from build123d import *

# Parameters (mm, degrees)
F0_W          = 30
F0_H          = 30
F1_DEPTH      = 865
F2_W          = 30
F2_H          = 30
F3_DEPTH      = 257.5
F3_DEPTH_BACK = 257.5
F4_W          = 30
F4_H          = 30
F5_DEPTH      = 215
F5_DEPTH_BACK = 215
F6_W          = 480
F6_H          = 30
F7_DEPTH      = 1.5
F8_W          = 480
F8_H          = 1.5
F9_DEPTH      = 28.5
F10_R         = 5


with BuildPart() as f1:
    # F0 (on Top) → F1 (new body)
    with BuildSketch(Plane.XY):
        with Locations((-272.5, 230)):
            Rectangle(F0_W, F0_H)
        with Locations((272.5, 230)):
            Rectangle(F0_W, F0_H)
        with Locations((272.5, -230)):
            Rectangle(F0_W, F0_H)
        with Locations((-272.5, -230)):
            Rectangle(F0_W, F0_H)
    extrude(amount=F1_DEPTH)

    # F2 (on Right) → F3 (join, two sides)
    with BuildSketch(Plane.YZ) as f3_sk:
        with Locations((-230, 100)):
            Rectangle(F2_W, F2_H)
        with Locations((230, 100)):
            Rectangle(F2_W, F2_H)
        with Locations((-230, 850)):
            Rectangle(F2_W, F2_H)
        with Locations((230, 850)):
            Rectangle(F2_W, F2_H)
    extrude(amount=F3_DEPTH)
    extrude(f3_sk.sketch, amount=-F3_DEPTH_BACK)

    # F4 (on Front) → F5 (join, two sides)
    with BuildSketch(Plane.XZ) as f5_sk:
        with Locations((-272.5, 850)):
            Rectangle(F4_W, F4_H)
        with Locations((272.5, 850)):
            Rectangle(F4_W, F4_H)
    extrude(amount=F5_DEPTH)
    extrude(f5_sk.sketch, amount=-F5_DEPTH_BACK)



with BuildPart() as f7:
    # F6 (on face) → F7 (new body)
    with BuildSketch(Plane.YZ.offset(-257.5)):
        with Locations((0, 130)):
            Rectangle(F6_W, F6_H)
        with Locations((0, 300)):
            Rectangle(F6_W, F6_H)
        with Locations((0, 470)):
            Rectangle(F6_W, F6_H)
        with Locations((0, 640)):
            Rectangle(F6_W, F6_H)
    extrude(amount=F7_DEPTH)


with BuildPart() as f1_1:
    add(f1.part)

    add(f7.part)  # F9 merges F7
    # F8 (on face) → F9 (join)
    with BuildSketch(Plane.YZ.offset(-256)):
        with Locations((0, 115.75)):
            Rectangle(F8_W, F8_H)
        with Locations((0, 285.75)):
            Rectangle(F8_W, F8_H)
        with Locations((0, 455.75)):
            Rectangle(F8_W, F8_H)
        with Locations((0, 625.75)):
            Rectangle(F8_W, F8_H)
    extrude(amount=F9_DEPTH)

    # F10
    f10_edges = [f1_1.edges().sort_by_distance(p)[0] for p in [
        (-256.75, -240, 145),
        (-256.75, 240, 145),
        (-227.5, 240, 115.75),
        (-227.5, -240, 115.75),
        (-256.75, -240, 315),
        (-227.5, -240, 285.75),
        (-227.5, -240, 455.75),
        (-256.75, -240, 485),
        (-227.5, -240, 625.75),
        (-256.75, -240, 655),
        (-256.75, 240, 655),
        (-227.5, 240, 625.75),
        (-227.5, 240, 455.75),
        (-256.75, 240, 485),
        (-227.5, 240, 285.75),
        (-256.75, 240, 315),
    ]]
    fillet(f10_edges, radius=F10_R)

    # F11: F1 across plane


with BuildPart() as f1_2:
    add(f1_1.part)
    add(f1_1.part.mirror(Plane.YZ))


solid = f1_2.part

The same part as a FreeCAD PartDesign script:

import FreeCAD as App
import Part
import Sketcher
from FreeCAD import Vector
Q = App.Units.Quantity


def edges_at(feature, points):
    """Names of the edges that pass closest to the given points."""
    edges = feature.Shape.Edges
    near = lambda p: min(range(len(edges)), key=lambda i: edges[i].distToShape(Part.Vertex(*p))[0])
    return sorted({f"Edge{near(p) + 1}" for p in points})

doc = App.newDocument("Part")
body = doc.addObject("PartDesign::Body", "Body")
body.AllowCompound = True

# Sketch on XY plane
sketch1 = body.newObject("Sketcher::SketchObject", "Sketch")
sketch1.AttachmentSupport = (doc.getObject("XY_Plane"), [""])
sketch1.MapMode = "FlatFace"
sketch1.addGeometry(Part.LineSegment(Vector(-287.5, 245, 0), Vector(-287.5, 215, 0)), False)
sketch1.addGeometry(Part.LineSegment(Vector(-287.5, 215, 0), Vector(-257.5, 215, 0)), False)
sketch1.addGeometry(Part.LineSegment(Vector(-257.5, 215, 0), Vector(-257.5, 245, 0)), False)
sketch1.addGeometry(Part.LineSegment(Vector(-257.5, 245, 0), Vector(-287.5, 245, 0)), False)
sketch1.addGeometry(Part.LineSegment(Vector(257.5, 245, 0), Vector(257.5, 215, 0)), False)
sketch1.addGeometry(Part.LineSegment(Vector(257.5, 215, 0), Vector(287.5, 215, 0)), False)
sketch1.addGeometry(Part.LineSegment(Vector(287.5, 215, 0), Vector(287.5, 245, 0)), False)
sketch1.addGeometry(Part.LineSegment(Vector(287.5, 245, 0), Vector(257.5, 245, 0)), False)
sketch1.addGeometry(Part.LineSegment(Vector(257.5, -215, 0), Vector(257.5, -245, 0)), False)
sketch1.addGeometry(Part.LineSegment(Vector(257.5, -245, 0), Vector(287.5, -245, 0)), False)
sketch1.addGeometry(Part.LineSegment(Vector(287.5, -245, 0), Vector(287.5, -215, 0)), False)
sketch1.addGeometry(Part.LineSegment(Vector(287.5, -215, 0), Vector(257.5, -215, 0)), False)
sketch1.addGeometry(Part.LineSegment(Vector(-287.5, -215, 0), Vector(-287.5, -245, 0)), False)
sketch1.addGeometry(Part.LineSegment(Vector(-287.5, -245, 0), Vector(-257.5, -245, 0)), False)
sketch1.addGeometry(Part.LineSegment(Vector(-257.5, -245, 0), Vector(-257.5, -215, 0)), False)
sketch1.addGeometry(Part.LineSegment(Vector(-257.5, -215, 0), Vector(-287.5, -215, 0)), False)
sketch1.addConstraint(Sketcher.Constraint("Coincident", 0, 2, 1, 1))
sketch1.addConstraint(Sketcher.Constraint("Coincident", 1, 2, 2, 1))
sketch1.addConstraint(Sketcher.Constraint("Coincident", 2, 2, 3, 1))
sketch1.addConstraint(Sketcher.Constraint("Coincident", 3, 2, 0, 1))
sketch1.addConstraint(Sketcher.Constraint("Coincident", 4, 2, 5, 1))
sketch1.addConstraint(Sketcher.Constraint("Coincident", 5, 2, 6, 1))
sketch1.addConstraint(Sketcher.Constraint("Coincident", 6, 2, 7, 1))
sketch1.addConstraint(Sketcher.Constraint("Coincident", 7, 2, 4, 1))
sketch1.addConstraint(Sketcher.Constraint("Coincident", 8, 2, 9, 1))
sketch1.addConstraint(Sketcher.Constraint("Coincident", 9, 2, 10, 1))
sketch1.addConstraint(Sketcher.Constraint("Coincident", 10, 2, 11, 1))
sketch1.addConstraint(Sketcher.Constraint("Coincident", 11, 2, 8, 1))
sketch1.addConstraint(Sketcher.Constraint("Coincident", 12, 2, 13, 1))
sketch1.addConstraint(Sketcher.Constraint("Coincident", 13, 2, 14, 1))
sketch1.addConstraint(Sketcher.Constraint("Coincident", 14, 2, 15, 1))
sketch1.addConstraint(Sketcher.Constraint("Coincident", 15, 2, 12, 1))
sketch1.addConstraint(Sketcher.Constraint("Vertical", 0))
sketch1.addConstraint(Sketcher.Constraint("Horizontal", 1))
sketch1.addConstraint(Sketcher.Constraint("Vertical", 2))
sketch1.addConstraint(Sketcher.Constraint("Horizontal", 3))
sketch1.addConstraint(Sketcher.Constraint("Vertical", 4))
sketch1.addConstraint(Sketcher.Constraint("Horizontal", 5))
sketch1.addConstraint(Sketcher.Constraint("Vertical", 6))
sketch1.addConstraint(Sketcher.Constraint("Horizontal", 7))
sketch1.addConstraint(Sketcher.Constraint("Vertical", 8))
sketch1.addConstraint(Sketcher.Constraint("Horizontal", 9))
sketch1.addConstraint(Sketcher.Constraint("Vertical", 10))
sketch1.addConstraint(Sketcher.Constraint("Horizontal", 11))
sketch1.addConstraint(Sketcher.Constraint("Vertical", 12))
sketch1.addConstraint(Sketcher.Constraint("Horizontal", 13))
sketch1.addConstraint(Sketcher.Constraint("Vertical", 14))
sketch1.addConstraint(Sketcher.Constraint("Horizontal", 15))
sketch1.addConstraint(Sketcher.Constraint("Symmetric", 2, 2, 8, 2, -1, 1))
sketch1.addConstraint(Sketcher.Constraint("Symmetric", 0, 2, 10, 2, -1, 1))
sketch1.addConstraint(Sketcher.Constraint("Symmetric", 6, 2, 12, 2, -1, 1))
sketch1.addConstraint(Sketcher.Constraint("Symmetric", 4, 2, 14, 2, -1, 1))
sketch1.addConstraint(Sketcher.Constraint("Symmetric", 1, 2, 4, 2, -2))
sketch1.addConstraint(Sketcher.Constraint("Symmetric", 3, 2, 6, 2, -2))
sketch1.addConstraint(Sketcher.Constraint("Equal", 15, 0))
sketch1.addConstraint(Sketcher.Constraint("DistanceX", 1, 1, 1, 2, Q("30 mm")))
sketch1.addConstraint(Sketcher.Constraint("DistanceY", -1, 1, 0, 2, Q("215 mm")))
sketch1.addConstraint(Sketcher.Constraint("DistanceX", 1, 2, 4, 2, Q("515 mm")))
pad1 = body.newObject("PartDesign::Pad", "Pad")
pad1.Profile = sketch1
pad1.Length = 865

# Sketch on YZ plane
sketch2 = body.newObject("Sketcher::SketchObject", "Sketch001")
sketch2.AttachmentSupport = (doc.getObject("YZ_Plane"), [""])
sketch2.MapMode = "FlatFace"
sketch2.addGeometry(Part.LineSegment(Vector(-245, 115, 0), Vector(-245, 85, 0)), False)
sketch2.addGeometry(Part.LineSegment(Vector(-245, 85, 0), Vector(-215, 85, 0)), False)
sketch2.addGeometry(Part.LineSegment(Vector(-215, 85, 0), Vector(-215, 115, 0)), False)
sketch2.addGeometry(Part.LineSegment(Vector(-215, 115, 0), Vector(-245, 115, 0)), False)
sketch2.addGeometry(Part.LineSegment(Vector(215, 115, 0), Vector(215, 85, 0)), False)
sketch2.addGeometry(Part.LineSegment(Vector(215, 85, 0), Vector(245, 85, 0)), False)
sketch2.addGeometry(Part.LineSegment(Vector(245, 85, 0), Vector(245, 115, 0)), False)
sketch2.addGeometry(Part.LineSegment(Vector(245, 115, 0), Vector(215, 115, 0)), False)
sketch2.addGeometry(Part.LineSegment(Vector(-245, 865, 0), Vector(-245, 835, 0)), False)
sketch2.addGeometry(Part.LineSegment(Vector(-245, 835, 0), Vector(-215, 835, 0)), False)
sketch2.addGeometry(Part.LineSegment(Vector(-215, 835, 0), Vector(-215, 865, 0)), False)
sketch2.addGeometry(Part.LineSegment(Vector(-215, 865, 0), Vector(-245, 865, 0)), False)
sketch2.addGeometry(Part.LineSegment(Vector(215, 865, 0), Vector(215, 835, 0)), False)
sketch2.addGeometry(Part.LineSegment(Vector(215, 835, 0), Vector(245, 835, 0)), False)
sketch2.addGeometry(Part.LineSegment(Vector(245, 835, 0), Vector(245, 865, 0)), False)
sketch2.addGeometry(Part.LineSegment(Vector(245, 865, 0), Vector(215, 865, 0)), False)
sketch2.addConstraint(Sketcher.Constraint("Coincident", 0, 2, 1, 1))
sketch2.addConstraint(Sketcher.Constraint("Coincident", 1, 2, 2, 1))
sketch2.addConstraint(Sketcher.Constraint("Coincident", 2, 2, 3, 1))
sketch2.addConstraint(Sketcher.Constraint("Coincident", 3, 2, 0, 1))
sketch2.addConstraint(Sketcher.Constraint("Coincident", 4, 2, 5, 1))
sketch2.addConstraint(Sketcher.Constraint("Coincident", 5, 2, 6, 1))
sketch2.addConstraint(Sketcher.Constraint("Coincident", 6, 2, 7, 1))
sketch2.addConstraint(Sketcher.Constraint("Coincident", 7, 2, 4, 1))
sketch2.addConstraint(Sketcher.Constraint("Coincident", 8, 2, 9, 1))
sketch2.addConstraint(Sketcher.Constraint("Coincident", 9, 2, 10, 1))
sketch2.addConstraint(Sketcher.Constraint("Coincident", 10, 2, 11, 1))
sketch2.addConstraint(Sketcher.Constraint("Coincident", 11, 2, 8, 1))
sketch2.addConstraint(Sketcher.Constraint("Coincident", 12, 2, 13, 1))
sketch2.addConstraint(Sketcher.Constraint("Coincident", 13, 2, 14, 1))
sketch2.addConstraint(Sketcher.Constraint("Coincident", 14, 2, 15, 1))
sketch2.addConstraint(Sketcher.Constraint("Coincident", 15, 2, 12, 1))
sketch2.addConstraint(Sketcher.Constraint("Vertical", 0))
sketch2.addConstraint(Sketcher.Constraint("Horizontal", 1))
sketch2.addConstraint(Sketcher.Constraint("Vertical", 2))
sketch2.addConstraint(Sketcher.Constraint("Horizontal", 3))
sketch2.addConstraint(Sketcher.Constraint("Vertical", 4))
sketch2.addConstraint(Sketcher.Constraint("Horizontal", 5))
sketch2.addConstraint(Sketcher.Constraint("Vertical", 6))
sketch2.addConstraint(Sketcher.Constraint("Horizontal", 7))
sketch2.addConstraint(Sketcher.Constraint("Vertical", 8))
sketch2.addConstraint(Sketcher.Constraint("Horizontal", 9))
sketch2.addConstraint(Sketcher.Constraint("Vertical", 10))
sketch2.addConstraint(Sketcher.Constraint("Horizontal", 11))
sketch2.addConstraint(Sketcher.Constraint("Vertical", 12))
sketch2.addConstraint(Sketcher.Constraint("Horizontal", 13))
sketch2.addConstraint(Sketcher.Constraint("Vertical", 14))
sketch2.addConstraint(Sketcher.Constraint("Horizontal", 15))
sketch2.addConstraint(Sketcher.Constraint("Symmetric", 1, 2, 4, 2, -2))
sketch2.addConstraint(Sketcher.Constraint("Symmetric", 3, 2, 6, 2, -2))
sketch2.addConstraint(Sketcher.Constraint("Symmetric", 9, 2, 12, 2, -2))
sketch2.addConstraint(Sketcher.Constraint("Symmetric", 11, 2, 14, 2, -2))
sketch2.addConstraint(Sketcher.Constraint("Vertical", 3, 2, 8, 2))
sketch2.addConstraint(Sketcher.Constraint("Vertical", 2, 2, 9, 2))
sketch2.addConstraint(Sketcher.Constraint("Equal", 15, 0))
sketch2.addConstraint(Sketcher.Constraint("Equal", 6, 8))
sketch2.addConstraint(Sketcher.Constraint("DistanceX", 1, 1, 1, 2, Q("30 mm")))
sketch2.addConstraint(Sketcher.Constraint("DistanceX", 0, 2, -1, 1, Q("245 mm")))
sketch2.addConstraint(Sketcher.Constraint("DistanceY", -1, 1, 0, 2, Q("85 mm")))
sketch2.addConstraint(Sketcher.Constraint("DistanceY", -1, 1, 8, 2, Q("835 mm")))
pad2 = body.newObject("PartDesign::Pad", "Pad001")
pad2.Profile = sketch2
pad2.Type = "TwoLengths"
pad2.Length = 257.5
pad2.Length2 = 257.5

# Sketch on XZ plane
sketch3 = body.newObject("Sketcher::SketchObject", "Sketch002")
sketch3.AttachmentSupport = (doc.getObject("XZ_Plane"), [""])
sketch3.MapMode = "FlatFace"
sketch3.addGeometry(Part.LineSegment(Vector(-287.5, 865, 0), Vector(-287.5, 835, 0)), False)
sketch3.addGeometry(Part.LineSegment(Vector(-287.5, 835, 0), Vector(-257.5, 835, 0)), False)
sketch3.addGeometry(Part.LineSegment(Vector(-257.5, 835, 0), Vector(-257.5, 865, 0)), False)
sketch3.addGeometry(Part.LineSegment(Vector(-257.5, 865, 0), Vector(-287.5, 865, 0)), False)
sketch3.addGeometry(Part.LineSegment(Vector(257.5, 865, 0), Vector(257.5, 835, 0)), False)
sketch3.addGeometry(Part.LineSegment(Vector(257.5, 835, 0), Vector(287.5, 835, 0)), False)
sketch3.addGeometry(Part.LineSegment(Vector(287.5, 835, 0), Vector(287.5, 865, 0)), False)
sketch3.addGeometry(Part.LineSegment(Vector(287.5, 865, 0), Vector(257.5, 865, 0)), False)
sketch3.addConstraint(Sketcher.Constraint("Coincident", 0, 2, 1, 1))
sketch3.addConstraint(Sketcher.Constraint("Coincident", 1, 2, 2, 1))
sketch3.addConstraint(Sketcher.Constraint("Coincident", 2, 2, 3, 1))
sketch3.addConstraint(Sketcher.Constraint("Coincident", 3, 2, 0, 1))
sketch3.addConstraint(Sketcher.Constraint("Coincident", 4, 2, 5, 1))
sketch3.addConstraint(Sketcher.Constraint("Coincident", 5, 2, 6, 1))
sketch3.addConstraint(Sketcher.Constraint("Coincident", 6, 2, 7, 1))
sketch3.addConstraint(Sketcher.Constraint("Coincident", 7, 2, 4, 1))
sketch3.addConstraint(Sketcher.Constraint("Vertical", 0))
sketch3.addConstraint(Sketcher.Constraint("Horizontal", 1))
sketch3.addConstraint(Sketcher.Constraint("Vertical", 2))
sketch3.addConstraint(Sketcher.Constraint("Horizontal", 3))
sketch3.addConstraint(Sketcher.Constraint("Vertical", 4))
sketch3.addConstraint(Sketcher.Constraint("Horizontal", 5))
sketch3.addConstraint(Sketcher.Constraint("Vertical", 6))
sketch3.addConstraint(Sketcher.Constraint("Horizontal", 7))
sketch3.addConstraint(Sketcher.Constraint("Symmetric", 1, 2, 4, 2, -2))
sketch3.addConstraint(Sketcher.Constraint("Symmetric", 3, 2, 6, 2, -2))
sketch3.addConstraint(Sketcher.Constraint("Equal", 7, 0))
sketch3.addConstraint(Sketcher.Constraint("DistanceX", 1, 1, 1, 2, Q("30 mm")))
sketch3.addConstraint(Sketcher.Constraint("DistanceY", -1, 1, 0, 2, Q("835 mm")))
sketch3.addConstraint(Sketcher.Constraint("DistanceX", 1, 2, 4, 2, Q("515 mm")))
pad3 = body.newObject("PartDesign::Pad", "Pad002")
pad3.Profile = sketch3
pad3.Type = "TwoLengths"
pad3.Length = 215
pad3.Length2 = 215
body2 = doc.addObject("PartDesign::Body", "Body001")
body2.AllowCompound = True

# Sketch on YZ plane
sketch4 = body2.newObject("Sketcher::SketchObject", "Sketch003")
sketch4.AttachmentSupport = (doc.getObject("YZ_Plane001"), [""])
sketch4.MapMode = "FlatFace"
sketch4.AttachmentOffset = App.Placement(Vector(0, 0, -257.5), App.Rotation())
sketch4.addGeometry(Part.LineSegment(Vector(-240, 145, 0), Vector(-240, 115, 0)), False)
sketch4.addGeometry(Part.LineSegment(Vector(-240, 115, 0), Vector(240, 115, 0)), False)
sketch4.addGeometry(Part.LineSegment(Vector(240, 115, 0), Vector(240, 145, 0)), False)
sketch4.addGeometry(Part.LineSegment(Vector(240, 145, 0), Vector(-240, 145, 0)), False)
sketch4.addGeometry(Part.LineSegment(Vector(-240, 315, 0), Vector(-240, 285, 0)), False)
sketch4.addGeometry(Part.LineSegment(Vector(-240, 285, 0), Vector(240, 285, 0)), False)
sketch4.addGeometry(Part.LineSegment(Vector(240, 285, 0), Vector(240, 315, 0)), False)
sketch4.addGeometry(Part.LineSegment(Vector(240, 315, 0), Vector(-240, 315, 0)), False)
sketch4.addGeometry(Part.LineSegment(Vector(-240, 485, 0), Vector(-240, 455, 0)), False)
sketch4.addGeometry(Part.LineSegment(Vector(-240, 455, 0), Vector(240, 455, 0)), False)
sketch4.addGeometry(Part.LineSegment(Vector(240, 455, 0), Vector(240, 485, 0)), False)
sketch4.addGeometry(Part.LineSegment(Vector(240, 485, 0), Vector(-240, 485, 0)), False)
sketch4.addGeometry(Part.LineSegment(Vector(-240, 655, 0), Vector(-240, 625, 0)), False)
sketch4.addGeometry(Part.LineSegment(Vector(-240, 625, 0), Vector(240, 625, 0)), False)
sketch4.addGeometry(Part.LineSegment(Vector(240, 625, 0), Vector(240, 655, 0)), False)
sketch4.addGeometry(Part.LineSegment(Vector(240, 655, 0), Vector(-240, 655, 0)), False)
sketch4.addConstraint(Sketcher.Constraint("Coincident", 0, 2, 1, 1))
sketch4.addConstraint(Sketcher.Constraint("Coincident", 1, 2, 2, 1))
sketch4.addConstraint(Sketcher.Constraint("Coincident", 2, 2, 3, 1))
sketch4.addConstraint(Sketcher.Constraint("Coincident", 3, 2, 0, 1))
sketch4.addConstraint(Sketcher.Constraint("Coincident", 4, 2, 5, 1))
sketch4.addConstraint(Sketcher.Constraint("Coincident", 5, 2, 6, 1))
sketch4.addConstraint(Sketcher.Constraint("Coincident", 6, 2, 7, 1))
sketch4.addConstraint(Sketcher.Constraint("Coincident", 7, 2, 4, 1))
sketch4.addConstraint(Sketcher.Constraint("Coincident", 8, 2, 9, 1))
sketch4.addConstraint(Sketcher.Constraint("Coincident", 9, 2, 10, 1))
sketch4.addConstraint(Sketcher.Constraint("Coincident", 10, 2, 11, 1))
sketch4.addConstraint(Sketcher.Constraint("Coincident", 11, 2, 8, 1))
sketch4.addConstraint(Sketcher.Constraint("Coincident", 12, 2, 13, 1))
sketch4.addConstraint(Sketcher.Constraint("Coincident", 13, 2, 14, 1))
sketch4.addConstraint(Sketcher.Constraint("Coincident", 14, 2, 15, 1))
sketch4.addConstraint(Sketcher.Constraint("Coincident", 15, 2, 12, 1))
sketch4.addConstraint(Sketcher.Constraint("Vertical", 0))
sketch4.addConstraint(Sketcher.Constraint("Horizontal", 1))
sketch4.addConstraint(Sketcher.Constraint("Vertical", 2))
sketch4.addConstraint(Sketcher.Constraint("Horizontal", 3))
sketch4.addConstraint(Sketcher.Constraint("Vertical", 4))
sketch4.addConstraint(Sketcher.Constraint("Horizontal", 5))
sketch4.addConstraint(Sketcher.Constraint("Vertical", 6))
sketch4.addConstraint(Sketcher.Constraint("Horizontal", 7))
sketch4.addConstraint(Sketcher.Constraint("Vertical", 8))
sketch4.addConstraint(Sketcher.Constraint("Horizontal", 9))
sketch4.addConstraint(Sketcher.Constraint("Vertical", 10))
sketch4.addConstraint(Sketcher.Constraint("Horizontal", 11))
sketch4.addConstraint(Sketcher.Constraint("Vertical", 12))
sketch4.addConstraint(Sketcher.Constraint("Horizontal", 13))
sketch4.addConstraint(Sketcher.Constraint("Vertical", 14))
sketch4.addConstraint(Sketcher.Constraint("Horizontal", 15))
sketch4.addConstraint(Sketcher.Constraint("Vertical", 3, 2, 4, 2))
sketch4.addConstraint(Sketcher.Constraint("Vertical", 2, 2, 5, 2))
sketch4.addConstraint(Sketcher.Constraint("Vertical", 7, 2, 8, 2))
sketch4.addConstraint(Sketcher.Constraint("Vertical", 6, 2, 9, 2))
sketch4.addConstraint(Sketcher.Constraint("Vertical", 11, 2, 12, 2))
sketch4.addConstraint(Sketcher.Constraint("Vertical", 10, 2, 13, 2))
sketch4.addConstraint(Sketcher.Constraint("Equal", 2, 4))
sketch4.addConstraint(Sketcher.Constraint("Equal", 6, 8))
sketch4.addConstraint(Sketcher.Constraint("Equal", 10, 12))
sketch4.addConstraint(Sketcher.Constraint("DistanceX", 1, 1, 1, 2, Q("480 mm")))
sketch4.addConstraint(Sketcher.Constraint("DistanceY", 0, 2, 0, 1, Q("30 mm")))
sketch4.addConstraint(Sketcher.Constraint("DistanceX", 0, 2, -1, 1, Q("240 mm")))
sketch4.addConstraint(Sketcher.Constraint("DistanceY", -1, 1, 0, 2, Q("115 mm")))
sketch4.addConstraint(Sketcher.Constraint("DistanceY", -1, 1, 4, 2, Q("285 mm")))
sketch4.addConstraint(Sketcher.Constraint("DistanceY", -1, 1, 8, 2, Q("455 mm")))
sketch4.addConstraint(Sketcher.Constraint("DistanceY", -1, 1, 12, 2, Q("625 mm")))
pad4 = body2.newObject("PartDesign::Pad", "Pad003")
pad4.Profile = sketch4
pad4.Length = 1.5
doc.recompute()

boolean = body.newObject("PartDesign::Boolean", "Boolean")
boolean.Type = "Fuse"
boolean.addObjects([body2])

# Sketch on YZ plane
sketch5 = body.newObject("Sketcher::SketchObject", "Sketch004")
sketch5.AttachmentSupport = (doc.getObject("YZ_Plane"), [""])
sketch5.MapMode = "FlatFace"
sketch5.AttachmentOffset = App.Placement(Vector(0, 0, -256), App.Rotation())
sketch5.addGeometry(Part.LineSegment(Vector(-240, 116.5, 0), Vector(-240, 115, 0)), False)
sketch5.addGeometry(Part.LineSegment(Vector(-240, 115, 0), Vector(240, 115, 0)), False)
sketch5.addGeometry(Part.LineSegment(Vector(240, 115, 0), Vector(240, 116.5, 0)), False)
sketch5.addGeometry(Part.LineSegment(Vector(240, 116.5, 0), Vector(-240, 116.5, 0)), False)
sketch5.addGeometry(Part.LineSegment(Vector(-240, 286.5, 0), Vector(-240, 285, 0)), False)
sketch5.addGeometry(Part.LineSegment(Vector(-240, 285, 0), Vector(240, 285, 0)), False)
sketch5.addGeometry(Part.LineSegment(Vector(240, 285, 0), Vector(240, 286.5, 0)), False)
sketch5.addGeometry(Part.LineSegment(Vector(240, 286.5, 0), Vector(-240, 286.5, 0)), False)
sketch5.addGeometry(Part.LineSegment(Vector(-240, 456.5, 0), Vector(-240, 455, 0)), False)
sketch5.addGeometry(Part.LineSegment(Vector(-240, 455, 0), Vector(240, 455, 0)), False)
sketch5.addGeometry(Part.LineSegment(Vector(240, 455, 0), Vector(240, 456.5, 0)), False)
sketch5.addGeometry(Part.LineSegment(Vector(240, 456.5, 0), Vector(-240, 456.5, 0)), False)
sketch5.addGeometry(Part.LineSegment(Vector(-240, 626.5, 0), Vector(-240, 625, 0)), False)
sketch5.addGeometry(Part.LineSegment(Vector(-240, 625, 0), Vector(240, 625, 0)), False)
sketch5.addGeometry(Part.LineSegment(Vector(240, 625, 0), Vector(240, 626.5, 0)), False)
sketch5.addGeometry(Part.LineSegment(Vector(240, 626.5, 0), Vector(-240, 626.5, 0)), False)
sketch5.addConstraint(Sketcher.Constraint("Coincident", 0, 2, 1, 1))
sketch5.addConstraint(Sketcher.Constraint("Coincident", 1, 2, 2, 1))
sketch5.addConstraint(Sketcher.Constraint("Coincident", 2, 2, 3, 1))
sketch5.addConstraint(Sketcher.Constraint("Coincident", 3, 2, 0, 1))
sketch5.addConstraint(Sketcher.Constraint("Coincident", 4, 2, 5, 1))
sketch5.addConstraint(Sketcher.Constraint("Coincident", 5, 2, 6, 1))
sketch5.addConstraint(Sketcher.Constraint("Coincident", 6, 2, 7, 1))
sketch5.addConstraint(Sketcher.Constraint("Coincident", 7, 2, 4, 1))
sketch5.addConstraint(Sketcher.Constraint("Coincident", 8, 2, 9, 1))
sketch5.addConstraint(Sketcher.Constraint("Coincident", 9, 2, 10, 1))
sketch5.addConstraint(Sketcher.Constraint("Coincident", 10, 2, 11, 1))
sketch5.addConstraint(Sketcher.Constraint("Coincident", 11, 2, 8, 1))
sketch5.addConstraint(Sketcher.Constraint("Coincident", 12, 2, 13, 1))
sketch5.addConstraint(Sketcher.Constraint("Coincident", 13, 2, 14, 1))
sketch5.addConstraint(Sketcher.Constraint("Coincident", 14, 2, 15, 1))
sketch5.addConstraint(Sketcher.Constraint("Coincident", 15, 2, 12, 1))
sketch5.addConstraint(Sketcher.Constraint("Vertical", 0))
sketch5.addConstraint(Sketcher.Constraint("Horizontal", 1))
sketch5.addConstraint(Sketcher.Constraint("Vertical", 2))
sketch5.addConstraint(Sketcher.Constraint("Horizontal", 3))
sketch5.addConstraint(Sketcher.Constraint("Vertical", 4))
sketch5.addConstraint(Sketcher.Constraint("Horizontal", 5))
sketch5.addConstraint(Sketcher.Constraint("Vertical", 6))
sketch5.addConstraint(Sketcher.Constraint("Horizontal", 7))
sketch5.addConstraint(Sketcher.Constraint("Vertical", 8))
sketch5.addConstraint(Sketcher.Constraint("Horizontal", 9))
sketch5.addConstraint(Sketcher.Constraint("Vertical", 10))
sketch5.addConstraint(Sketcher.Constraint("Horizontal", 11))
sketch5.addConstraint(Sketcher.Constraint("Vertical", 12))
sketch5.addConstraint(Sketcher.Constraint("Horizontal", 13))
sketch5.addConstraint(Sketcher.Constraint("Vertical", 14))
sketch5.addConstraint(Sketcher.Constraint("Horizontal", 15))
sketch5.addConstraint(Sketcher.Constraint("Vertical", 3, 2, 4, 2))
sketch5.addConstraint(Sketcher.Constraint("Vertical", 2, 2, 5, 2))
sketch5.addConstraint(Sketcher.Constraint("Vertical", 7, 2, 8, 2))
sketch5.addConstraint(Sketcher.Constraint("Vertical", 6, 2, 9, 2))
sketch5.addConstraint(Sketcher.Constraint("Vertical", 11, 2, 12, 2))
sketch5.addConstraint(Sketcher.Constraint("Vertical", 10, 2, 13, 2))
sketch5.addConstraint(Sketcher.Constraint("Equal", 2, 4))
sketch5.addConstraint(Sketcher.Constraint("Equal", 6, 8))
sketch5.addConstraint(Sketcher.Constraint("Equal", 10, 12))
sketch5.addConstraint(Sketcher.Constraint("DistanceX", 1, 1, 1, 2, Q("480 mm")))
sketch5.addConstraint(Sketcher.Constraint("DistanceY", 0, 2, 0, 1, Q("1.5 mm")))
sketch5.addConstraint(Sketcher.Constraint("DistanceX", 0, 2, -1, 1, Q("240 mm")))
sketch5.addConstraint(Sketcher.Constraint("DistanceY", -1, 1, 0, 2, Q("115 mm")))
sketch5.addConstraint(Sketcher.Constraint("DistanceY", -1, 1, 4, 2, Q("285 mm")))
sketch5.addConstraint(Sketcher.Constraint("DistanceY", -1, 1, 8, 2, Q("455 mm")))
sketch5.addConstraint(Sketcher.Constraint("DistanceY", -1, 1, 12, 2, Q("625 mm")))
pad5 = body.newObject("PartDesign::Pad", "Pad004")
pad5.Profile = sketch5
pad5.Length = 28.5
doc.recompute()

fillet = body.newObject("PartDesign::Fillet", "Fillet")
fillet.Base = (pad5, edges_at(pad5, [
    (-256.75, -240, 145),
    (-256.75, 240, 145),
    (-227.5, 240, 115.75),
    (-227.5, -240, 115.75),
    (-256.75, -240, 315),
    (-227.5, -240, 285.75),
    (-227.5, -240, 455.75),
    (-256.75, -240, 485),
    (-227.5, -240, 625.75),
    (-256.75, -240, 655),
    (-256.75, 240, 655),
    (-227.5, 240, 625.75),
    (-227.5, 240, 455.75),
    (-256.75, 240, 485),
    (-227.5, 240, 285.75),
    (-256.75, 240, 315),
]))
fillet.Radius = 5
body3 = doc.addObject("PartDesign::Body", "Body002")
doc.recompute()

body3.BaseFeature = body
doc.recompute()

mirroring = doc.addObject("Part::Mirroring", "Mirroring")
mirroring.Source = body
mirroring.Base = Vector(0, 0, 0)
mirroring.Normal = Vector(1, 0, 0)
body4 = doc.addObject("PartDesign::Body", "Body003")
body4.BaseFeature = mirroring
boolean2 = body3.newObject("PartDesign::Boolean", "Boolean001")
boolean2.Type = "Fuse"
boolean2.addObjects([body4])
doc.recompute()
mirroring.Visibility = False

doc.recompute()
